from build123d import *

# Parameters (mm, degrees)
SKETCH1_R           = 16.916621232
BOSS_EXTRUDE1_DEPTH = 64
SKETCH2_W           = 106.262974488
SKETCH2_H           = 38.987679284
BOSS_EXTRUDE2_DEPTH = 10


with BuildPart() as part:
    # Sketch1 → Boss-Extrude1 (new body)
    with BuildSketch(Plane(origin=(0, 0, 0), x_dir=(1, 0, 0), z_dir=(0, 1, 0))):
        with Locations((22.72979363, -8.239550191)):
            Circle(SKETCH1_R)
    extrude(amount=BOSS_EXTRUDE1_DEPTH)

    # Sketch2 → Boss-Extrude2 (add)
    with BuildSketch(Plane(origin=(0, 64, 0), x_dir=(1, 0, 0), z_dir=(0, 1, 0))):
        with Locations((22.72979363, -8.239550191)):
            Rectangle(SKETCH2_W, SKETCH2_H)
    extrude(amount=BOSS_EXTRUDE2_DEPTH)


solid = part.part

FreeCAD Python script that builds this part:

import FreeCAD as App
import Part
import Sketcher
from FreeCAD import Vector
Q = App.Units.Quantity

doc = App.newDocument("Part")
body = doc.addObject("PartDesign::Body", "Body")

# Sketch on XZ plane
sketch1 = doc.addObject("Sketcher::SketchObject", "Sketch")
body.addObject(sketch1)
sketch1.AttachmentSupport = (doc.XZ_Plane, [""])
sketch1.MapMode = "FlatFace"
sketch1.addGeometry(Part.Circle(Vector(23, 8, 0), Vector(0, 0, 1), 17), False)
sketch1.addConstraint([
    Sketcher.Constraint("Diameter", 0, Q("33.833242 mm")),
    Sketcher.Constraint("DistanceY", -1, 1, 0, 3, Q("8.23955 mm")),
    Sketcher.Constraint("DistanceX", -1, 1, 0, 3, Q("22.729794 mm")),
])
pad1 = doc.addObject("PartDesign::Pad", "Pad")
body.addObject(pad1)
pad1.Profile = sketch1
pad1.Length = 64
pad1.Reversed = True

# Sketch on XZ plane
sketch2 = doc.addObject("Sketcher::SketchObject", "Sketch001")
body.addObject(sketch2)
sketch2.AttachmentSupport = (doc.XZ_Plane, [""])
sketch2.MapMode = "FlatFace"
sketch2.AttachmentOffset = App.Placement(Vector(0, 0, -64), App.Rotation())
sketch2.addGeometry([
    Part.LineSegment(Vector(-30, -11, 0), Vector(-30, 28, 0)),
    Part.LineSegment(Vector(-30, 28, 0), Vector(76, 28, 0)),
    Part.LineSegment(Vector(76, 28, 0), Vector(76, -11, 0)),
    Part.LineSegment(Vector(76, -11, 0), Vector(-30, -11, 0)),
], False)
sketch2.addConstraint([
    Sketcher.Constraint("Coincident", 0, 2, 1, 1),
    Sketcher.Constraint("Coincident", 1, 2, 2, 1),
    Sketcher.Constraint("Coincident", 2, 2, 3, 1),
    Sketcher.Constraint("Coincident", 3, 2, 0, 1),
    Sketcher.Constraint("Vertical", 0),
    Sketcher.Constraint("Horizontal", 1),
    Sketcher.Constraint("Vertical", 2),
    Sketcher.Constraint("Horizontal", 3),
    Sketcher.Constraint("DistanceY", 0, 1, 0, 2, Q("38.987679 mm")),
    Sketcher.Constraint("DistanceX", 1, 1, 1, 2, Q("106.262974 mm")),
    Sketcher.Constraint("DistanceY", -1, 1, 0, 2, Q("27.73339 mm")),
    Sketcher.Constraint("DistanceX", -1, 1, 1, 2, Q("75.861281 mm")),
])
pad2 = doc.addObject("PartDesign::Pad", "Pad001")
body.addObject(pad2)
pad2.Profile = sketch2
pad2.Length = 10
pad2.Reversed = True

doc.recompute()
